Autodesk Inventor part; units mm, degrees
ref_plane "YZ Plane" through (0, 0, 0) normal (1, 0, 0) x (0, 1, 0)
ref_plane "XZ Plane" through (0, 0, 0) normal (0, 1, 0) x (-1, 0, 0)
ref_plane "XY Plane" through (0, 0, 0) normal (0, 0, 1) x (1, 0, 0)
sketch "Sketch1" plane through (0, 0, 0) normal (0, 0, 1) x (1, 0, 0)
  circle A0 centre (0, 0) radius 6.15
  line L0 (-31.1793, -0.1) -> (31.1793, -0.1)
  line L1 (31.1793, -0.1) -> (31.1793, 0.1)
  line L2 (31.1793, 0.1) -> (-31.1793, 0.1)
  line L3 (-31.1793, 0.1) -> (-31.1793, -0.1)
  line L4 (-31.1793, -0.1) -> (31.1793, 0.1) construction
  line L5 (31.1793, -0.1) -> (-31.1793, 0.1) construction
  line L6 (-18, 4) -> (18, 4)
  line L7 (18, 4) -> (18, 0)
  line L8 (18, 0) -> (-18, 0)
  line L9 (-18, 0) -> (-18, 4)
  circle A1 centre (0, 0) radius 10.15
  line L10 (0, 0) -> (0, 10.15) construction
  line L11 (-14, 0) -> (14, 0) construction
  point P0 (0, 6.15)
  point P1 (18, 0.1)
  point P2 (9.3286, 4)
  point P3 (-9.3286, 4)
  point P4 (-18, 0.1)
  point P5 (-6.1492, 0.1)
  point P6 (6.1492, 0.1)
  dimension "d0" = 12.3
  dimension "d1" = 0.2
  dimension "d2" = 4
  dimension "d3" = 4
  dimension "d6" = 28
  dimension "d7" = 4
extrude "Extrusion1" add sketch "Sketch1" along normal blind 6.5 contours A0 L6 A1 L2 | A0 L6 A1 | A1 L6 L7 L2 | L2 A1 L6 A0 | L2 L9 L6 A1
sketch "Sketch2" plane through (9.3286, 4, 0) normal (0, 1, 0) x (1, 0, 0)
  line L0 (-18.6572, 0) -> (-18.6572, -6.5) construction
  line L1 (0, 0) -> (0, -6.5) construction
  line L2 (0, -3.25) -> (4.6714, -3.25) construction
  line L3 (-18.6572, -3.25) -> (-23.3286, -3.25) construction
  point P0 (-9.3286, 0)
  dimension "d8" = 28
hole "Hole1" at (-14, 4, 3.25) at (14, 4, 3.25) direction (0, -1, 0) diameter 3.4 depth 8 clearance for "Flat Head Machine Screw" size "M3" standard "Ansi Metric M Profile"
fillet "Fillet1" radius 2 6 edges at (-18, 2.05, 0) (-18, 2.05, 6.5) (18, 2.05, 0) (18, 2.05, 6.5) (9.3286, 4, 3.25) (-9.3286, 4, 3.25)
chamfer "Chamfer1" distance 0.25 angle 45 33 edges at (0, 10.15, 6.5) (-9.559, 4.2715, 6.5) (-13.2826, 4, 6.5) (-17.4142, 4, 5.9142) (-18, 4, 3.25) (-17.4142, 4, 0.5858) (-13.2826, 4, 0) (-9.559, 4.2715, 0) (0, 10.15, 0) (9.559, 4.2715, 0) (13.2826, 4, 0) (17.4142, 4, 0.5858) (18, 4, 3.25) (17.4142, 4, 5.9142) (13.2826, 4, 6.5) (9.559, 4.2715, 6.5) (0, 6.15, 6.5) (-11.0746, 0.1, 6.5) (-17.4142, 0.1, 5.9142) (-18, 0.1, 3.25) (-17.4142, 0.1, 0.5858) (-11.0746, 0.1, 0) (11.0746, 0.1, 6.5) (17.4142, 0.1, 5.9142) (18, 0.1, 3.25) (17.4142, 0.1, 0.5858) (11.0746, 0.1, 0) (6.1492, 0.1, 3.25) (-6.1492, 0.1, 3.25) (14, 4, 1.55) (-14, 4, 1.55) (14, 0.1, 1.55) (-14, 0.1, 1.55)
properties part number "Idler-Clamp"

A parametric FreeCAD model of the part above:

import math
import FreeCAD as App
import Part
import Sketcher


def edges_at(feature, points):
    """Names of the edges that pass closest to the given points."""
    edges = feature.Shape.Edges
    near = lambda p: min(range(len(edges)), key=lambda i: edges[i].distToShape(Part.Vertex(*p))[0])
    return sorted({f"Edge{near(p) + 1}" for p in points})

doc = App.newDocument("Part")
params = doc.addObject("Spreadsheet::Sheet", "Params")
for row, (alias, value) in enumerate([
    ("sketch1_radius", "6.15 mm"),
    ("sketch1_radius2", "10.15 mm"),
    ("sketch1_height", "3.9 mm"),
    ("pad1_length", "6.5 mm"),
    ("sketch2_diameter", "3.4 mm"),
    ("hole_diameter", "3.4 mm"),
    ("hole_depth", "8 mm"),
    ("fillet_radius", "2 mm"),
    ("chamfer_size", "0.25 mm"),
], start=1):
    params.set(f"A{row}", alias)
    params.set(f"B{row}", "=" + value)
    params.setAlias(f"B{row}", alias)

body = doc.addObject("PartDesign::Body", "Body")

# Sketch on XY plane
sketch1 = doc.addObject("Sketcher::SketchObject", "Sketch")
body.addObject(sketch1)
sketch1.AttachmentSupport = (doc.XY_Plane, [""])
sketch1.MapMode = "FlatFace"
sketch1.addGeometry([
    Part.LineSegment(App.Vector(6.149187, 0.1, 0), App.Vector(18, 0.1, 0)),  # 0
    Part.LineSegment(App.Vector(18, 0.1, 0), App.Vector(18, 4, 0)),  # 1
    Part.LineSegment(App.Vector(18, 4, 0), App.Vector(9.328585, 4, 0)),  # 2
    Part.ArcOfCircle(Part.Circle(App.Vector(0, 0, 0), App.Vector(0, 0, 1), 10.15), math.radians(23.209149), math.radians(156.790851)),  # 3
    Part.LineSegment(App.Vector(-9.328585, 4, 0), App.Vector(-18, 4, 0)),  # 4
    Part.LineSegment(App.Vector(-18, 4, 0), App.Vector(-18, 0.1, 0)),  # 5
    Part.LineSegment(App.Vector(-18, 0.1, 0), App.Vector(-6.149187, 0.1, 0)),  # 6
    Part.ArcOfCircle(Part.Circle(App.Vector(0, 0, 0), App.Vector(0, 0, 1), 6.15), math.radians(0.93168), math.radians(179.06832)),  # 7
], False)
sketch1.addConstraint([
    Sketcher.Constraint("Coincident", 0, 2, 1, 1),
    Sketcher.Constraint("Coincident", 1, 2, 2, 1),
    Sketcher.Constraint("Coincident", 2, 2, 3, 1),
    Sketcher.Constraint("Coincident", 3, 2, 4, 1),
    Sketcher.Constraint("Coincident", 4, 2, 5, 1),
    Sketcher.Constraint("Coincident", 5, 2, 6, 1),
    Sketcher.Constraint("Coincident", 6, 2, 7, 2),
    Sketcher.Constraint("Coincident", 7, 1, 0, 1),
    Sketcher.Constraint("Horizontal", 0),
    Sketcher.Constraint("Vertical", 1),
    Sketcher.Constraint("Horizontal", 2),
    Sketcher.Constraint("Horizontal", 4),
    Sketcher.Constraint("Vertical", 5),
    Sketcher.Constraint("Horizontal", 6),
    Sketcher.Constraint("Coincident", 3, 3, -1, 1),
    Sketcher.Constraint("Coincident", 7, 3, -1, 1),
    Sketcher.Constraint("Symmetric", 1, 2, 4, 2, -2),
    Sketcher.Constraint("Horizontal", 0, 2, 5, 2),
    Sketcher.Constraint("Radius", 7, 6.15),
    Sketcher.Constraint("DistanceY", -1, 1, 1, 2, 4.0),
    Sketcher.Constraint("Radius", 3, 10.15),
    Sketcher.Constraint("DistanceY", 1, 1, 1, 2, 3.9),
    Sketcher.Constraint("DistanceX", -1, 1, 0, 2, 18.0),
])
sketch1.setExpression("Constraints[18]", "Params.sketch1_radius")
sketch1.setExpression("Constraints[20]", "Params.sketch1_radius2")
sketch1.setExpression("Constraints[21]", "Params.sketch1_height")
pad1 = doc.addObject("PartDesign::Pad", "Pad")
body.addObject(pad1)
pad1.Profile = sketch1
pad1.setExpression("Length", "Params.pad1_length")

# Sketch on XZ plane
sketch2 = doc.addObject("Sketcher::SketchObject", "Sketch001")
body.addObject(sketch2)
sketch2.AttachmentSupport = (doc.XZ_Plane, [""])
sketch2.MapMode = "FlatFace"
sketch2.AttachmentOffset = App.Placement(App.Vector(0, 0, -4), App.Rotation())
sketch2.addGeometry([
    Part.Circle(App.Vector(-14, 3.25, 0), App.Vector(0, 0, 1), 1.7),
    Part.Circle(App.Vector(14, 3.25, 0), App.Vector(0, 0, 1), 1.7),
], False)
sketch2.addConstraint([
    Sketcher.Constraint("Equal", 0, 1),
    Sketcher.Constraint("Symmetric", 0, 3, 1, 3, -2),
    Sketcher.Constraint("Diameter", 0, 3.4),
    Sketcher.Constraint("DistanceX", 0, 3, -1, 1, 14.0),
    Sketcher.Constraint("DistanceY", -1, 1, 0, 3, 3.25),
])
sketch2.setExpression("Constraints[2]", "Params.sketch2_diameter")
doc.recompute()
hole = doc.addObject("PartDesign::Hole", "Hole")
body.addObject(hole)
hole.Profile = sketch2
hole.ThreadType = "None"
hole.setExpression("Diameter", "Params.hole_diameter")
hole.DepthType = "Dimension"
hole.setExpression("Depth", "Params.hole_depth")
hole.DrillPoint = "Flat"
hole.Reversed = True
doc.recompute()

fillet = doc.addObject("PartDesign::Fillet", "Fillet")
body.addObject(fillet)
fillet.Base = (hole, edges_at(hole, [
    (-18, 2.05, 0),
    (-18, 2.05, 6.5),
    (18, 2.05, 0),
    (18, 2.05, 6.5),
    (9.329, 4, 3.25),
    (-9.329, 4, 3.25),
]))
fillet.setExpression("Radius", "Params.fillet_radius")
doc.recompute()

chamfer = doc.addObject("PartDesign::Chamfer", "Chamfer")
body.addObject(chamfer)
chamfer.Base = (fillet, edges_at(fillet, [
    (0, 10.15, 6.5),
    (-9.559, 4.271, 6.5),
    (-13.283, 4, 6.5),
    (-17.414, 4, 5.914),
    (-18, 4, 3.25),
    (-17.414, 4, 0.586),
    (-13.283, 4, 0),
    (-9.559, 4.271, 0),
    (0, 10.15, 0),
    (9.559, 4.271, 0),
    (13.283, 4, 0),
    (17.414, 4, 0.586),
    (18, 4, 3.25),
    (17.414, 4, 5.914),
    (13.283, 4, 6.5),
    (9.559, 4.271, 6.5),
    (0, 6.15, 6.5),
    (-11.075, 0.1, 6.5),
    (-17.414, 0.1, 5.914),
    (-18, 0.1, 3.25),
    (-17.414, 0.1, 0.586),
    (-11.075, 0.1, 0),
    (11.075, 0.1, 6.5),
    (17.414, 0.1, 5.914),
    (18, 0.1, 3.25),
    (17.414, 0.1, 0.586),
    (11.075, 0.1, 0),
    (6.149, 0.1, 3.25),
    (-6.149, 0.1, 3.25),
    (14, 4, 1.55),
    (-14, 4, 1.55),
    (14, 0.1, 1.55),
    (-14, 0.1, 1.55),
]))
chamfer.setExpression("Size", "Params.chamfer_size")

doc.recompute()
